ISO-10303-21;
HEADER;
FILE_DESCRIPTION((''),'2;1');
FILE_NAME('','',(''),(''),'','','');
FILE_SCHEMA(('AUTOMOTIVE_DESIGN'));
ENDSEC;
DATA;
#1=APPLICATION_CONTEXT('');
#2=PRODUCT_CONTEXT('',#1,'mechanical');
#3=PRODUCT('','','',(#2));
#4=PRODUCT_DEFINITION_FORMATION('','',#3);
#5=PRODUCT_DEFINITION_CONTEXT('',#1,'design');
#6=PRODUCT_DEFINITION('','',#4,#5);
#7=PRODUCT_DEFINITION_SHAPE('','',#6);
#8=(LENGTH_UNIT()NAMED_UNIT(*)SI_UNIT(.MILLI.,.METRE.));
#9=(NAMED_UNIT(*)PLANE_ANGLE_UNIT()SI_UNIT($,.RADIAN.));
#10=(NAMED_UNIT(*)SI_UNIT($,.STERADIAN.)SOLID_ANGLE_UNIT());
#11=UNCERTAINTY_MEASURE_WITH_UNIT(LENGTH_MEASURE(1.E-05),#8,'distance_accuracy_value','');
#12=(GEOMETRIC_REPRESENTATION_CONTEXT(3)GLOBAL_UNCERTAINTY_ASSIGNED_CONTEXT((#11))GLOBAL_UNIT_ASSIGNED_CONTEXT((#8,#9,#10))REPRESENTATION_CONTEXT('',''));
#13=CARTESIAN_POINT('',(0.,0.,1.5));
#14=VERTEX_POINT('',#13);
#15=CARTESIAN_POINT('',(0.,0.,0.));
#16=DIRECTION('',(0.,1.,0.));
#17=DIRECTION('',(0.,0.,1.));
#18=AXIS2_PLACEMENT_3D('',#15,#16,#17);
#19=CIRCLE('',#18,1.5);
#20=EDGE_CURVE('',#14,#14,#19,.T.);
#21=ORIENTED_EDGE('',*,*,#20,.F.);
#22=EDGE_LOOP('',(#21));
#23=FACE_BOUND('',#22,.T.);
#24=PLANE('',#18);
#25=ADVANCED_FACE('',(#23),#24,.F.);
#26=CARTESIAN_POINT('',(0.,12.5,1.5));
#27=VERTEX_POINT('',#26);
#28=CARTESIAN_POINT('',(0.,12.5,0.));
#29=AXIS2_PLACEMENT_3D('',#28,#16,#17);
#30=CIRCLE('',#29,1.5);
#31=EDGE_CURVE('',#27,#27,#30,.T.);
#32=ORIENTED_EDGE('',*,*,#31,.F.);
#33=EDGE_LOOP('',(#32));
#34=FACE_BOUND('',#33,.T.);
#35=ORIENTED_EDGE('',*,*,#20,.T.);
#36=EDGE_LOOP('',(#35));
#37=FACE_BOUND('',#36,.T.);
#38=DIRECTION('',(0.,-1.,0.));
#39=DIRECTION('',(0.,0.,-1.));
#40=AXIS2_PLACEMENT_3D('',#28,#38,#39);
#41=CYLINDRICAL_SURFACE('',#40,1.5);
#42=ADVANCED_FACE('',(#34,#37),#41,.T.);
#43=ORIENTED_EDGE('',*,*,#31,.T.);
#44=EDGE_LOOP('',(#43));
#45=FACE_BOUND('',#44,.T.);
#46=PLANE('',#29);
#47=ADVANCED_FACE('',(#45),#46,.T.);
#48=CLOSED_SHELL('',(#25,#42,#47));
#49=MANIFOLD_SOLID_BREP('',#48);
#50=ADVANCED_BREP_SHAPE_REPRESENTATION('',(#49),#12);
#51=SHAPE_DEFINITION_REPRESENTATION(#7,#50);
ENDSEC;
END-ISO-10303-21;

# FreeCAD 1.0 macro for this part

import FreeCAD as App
import Part
import Sketcher
from FreeCAD import Vector
Q = App.Units.Quantity

doc = App.newDocument("Part")
body = doc.addObject("PartDesign::Body", "Body")

# Sketch on XZ plane
sketch1 = body.newObject("Sketcher::SketchObject", "Sketch")
sketch1.AttachmentSupport = (doc.getObject("XZ_Plane"), [""])
sketch1.MapMode = "FlatFace"
sketch1.addGeometry(Part.Circle(Vector(0, 0, 0), Vector(0, 0, 1), 1.5), False)
sketch1.addConstraint(Sketcher.Constraint("Coincident", 0, 3, -1, 1))
sketch1.addConstraint(Sketcher.Constraint("Diameter", 0, Q("3 mm")))
pad1 = body.newObject("PartDesign::Pad", "Pad")
pad1.Profile = sketch1
pad1.Length = 12.5
pad1.Reversed = True

doc.recompute()
